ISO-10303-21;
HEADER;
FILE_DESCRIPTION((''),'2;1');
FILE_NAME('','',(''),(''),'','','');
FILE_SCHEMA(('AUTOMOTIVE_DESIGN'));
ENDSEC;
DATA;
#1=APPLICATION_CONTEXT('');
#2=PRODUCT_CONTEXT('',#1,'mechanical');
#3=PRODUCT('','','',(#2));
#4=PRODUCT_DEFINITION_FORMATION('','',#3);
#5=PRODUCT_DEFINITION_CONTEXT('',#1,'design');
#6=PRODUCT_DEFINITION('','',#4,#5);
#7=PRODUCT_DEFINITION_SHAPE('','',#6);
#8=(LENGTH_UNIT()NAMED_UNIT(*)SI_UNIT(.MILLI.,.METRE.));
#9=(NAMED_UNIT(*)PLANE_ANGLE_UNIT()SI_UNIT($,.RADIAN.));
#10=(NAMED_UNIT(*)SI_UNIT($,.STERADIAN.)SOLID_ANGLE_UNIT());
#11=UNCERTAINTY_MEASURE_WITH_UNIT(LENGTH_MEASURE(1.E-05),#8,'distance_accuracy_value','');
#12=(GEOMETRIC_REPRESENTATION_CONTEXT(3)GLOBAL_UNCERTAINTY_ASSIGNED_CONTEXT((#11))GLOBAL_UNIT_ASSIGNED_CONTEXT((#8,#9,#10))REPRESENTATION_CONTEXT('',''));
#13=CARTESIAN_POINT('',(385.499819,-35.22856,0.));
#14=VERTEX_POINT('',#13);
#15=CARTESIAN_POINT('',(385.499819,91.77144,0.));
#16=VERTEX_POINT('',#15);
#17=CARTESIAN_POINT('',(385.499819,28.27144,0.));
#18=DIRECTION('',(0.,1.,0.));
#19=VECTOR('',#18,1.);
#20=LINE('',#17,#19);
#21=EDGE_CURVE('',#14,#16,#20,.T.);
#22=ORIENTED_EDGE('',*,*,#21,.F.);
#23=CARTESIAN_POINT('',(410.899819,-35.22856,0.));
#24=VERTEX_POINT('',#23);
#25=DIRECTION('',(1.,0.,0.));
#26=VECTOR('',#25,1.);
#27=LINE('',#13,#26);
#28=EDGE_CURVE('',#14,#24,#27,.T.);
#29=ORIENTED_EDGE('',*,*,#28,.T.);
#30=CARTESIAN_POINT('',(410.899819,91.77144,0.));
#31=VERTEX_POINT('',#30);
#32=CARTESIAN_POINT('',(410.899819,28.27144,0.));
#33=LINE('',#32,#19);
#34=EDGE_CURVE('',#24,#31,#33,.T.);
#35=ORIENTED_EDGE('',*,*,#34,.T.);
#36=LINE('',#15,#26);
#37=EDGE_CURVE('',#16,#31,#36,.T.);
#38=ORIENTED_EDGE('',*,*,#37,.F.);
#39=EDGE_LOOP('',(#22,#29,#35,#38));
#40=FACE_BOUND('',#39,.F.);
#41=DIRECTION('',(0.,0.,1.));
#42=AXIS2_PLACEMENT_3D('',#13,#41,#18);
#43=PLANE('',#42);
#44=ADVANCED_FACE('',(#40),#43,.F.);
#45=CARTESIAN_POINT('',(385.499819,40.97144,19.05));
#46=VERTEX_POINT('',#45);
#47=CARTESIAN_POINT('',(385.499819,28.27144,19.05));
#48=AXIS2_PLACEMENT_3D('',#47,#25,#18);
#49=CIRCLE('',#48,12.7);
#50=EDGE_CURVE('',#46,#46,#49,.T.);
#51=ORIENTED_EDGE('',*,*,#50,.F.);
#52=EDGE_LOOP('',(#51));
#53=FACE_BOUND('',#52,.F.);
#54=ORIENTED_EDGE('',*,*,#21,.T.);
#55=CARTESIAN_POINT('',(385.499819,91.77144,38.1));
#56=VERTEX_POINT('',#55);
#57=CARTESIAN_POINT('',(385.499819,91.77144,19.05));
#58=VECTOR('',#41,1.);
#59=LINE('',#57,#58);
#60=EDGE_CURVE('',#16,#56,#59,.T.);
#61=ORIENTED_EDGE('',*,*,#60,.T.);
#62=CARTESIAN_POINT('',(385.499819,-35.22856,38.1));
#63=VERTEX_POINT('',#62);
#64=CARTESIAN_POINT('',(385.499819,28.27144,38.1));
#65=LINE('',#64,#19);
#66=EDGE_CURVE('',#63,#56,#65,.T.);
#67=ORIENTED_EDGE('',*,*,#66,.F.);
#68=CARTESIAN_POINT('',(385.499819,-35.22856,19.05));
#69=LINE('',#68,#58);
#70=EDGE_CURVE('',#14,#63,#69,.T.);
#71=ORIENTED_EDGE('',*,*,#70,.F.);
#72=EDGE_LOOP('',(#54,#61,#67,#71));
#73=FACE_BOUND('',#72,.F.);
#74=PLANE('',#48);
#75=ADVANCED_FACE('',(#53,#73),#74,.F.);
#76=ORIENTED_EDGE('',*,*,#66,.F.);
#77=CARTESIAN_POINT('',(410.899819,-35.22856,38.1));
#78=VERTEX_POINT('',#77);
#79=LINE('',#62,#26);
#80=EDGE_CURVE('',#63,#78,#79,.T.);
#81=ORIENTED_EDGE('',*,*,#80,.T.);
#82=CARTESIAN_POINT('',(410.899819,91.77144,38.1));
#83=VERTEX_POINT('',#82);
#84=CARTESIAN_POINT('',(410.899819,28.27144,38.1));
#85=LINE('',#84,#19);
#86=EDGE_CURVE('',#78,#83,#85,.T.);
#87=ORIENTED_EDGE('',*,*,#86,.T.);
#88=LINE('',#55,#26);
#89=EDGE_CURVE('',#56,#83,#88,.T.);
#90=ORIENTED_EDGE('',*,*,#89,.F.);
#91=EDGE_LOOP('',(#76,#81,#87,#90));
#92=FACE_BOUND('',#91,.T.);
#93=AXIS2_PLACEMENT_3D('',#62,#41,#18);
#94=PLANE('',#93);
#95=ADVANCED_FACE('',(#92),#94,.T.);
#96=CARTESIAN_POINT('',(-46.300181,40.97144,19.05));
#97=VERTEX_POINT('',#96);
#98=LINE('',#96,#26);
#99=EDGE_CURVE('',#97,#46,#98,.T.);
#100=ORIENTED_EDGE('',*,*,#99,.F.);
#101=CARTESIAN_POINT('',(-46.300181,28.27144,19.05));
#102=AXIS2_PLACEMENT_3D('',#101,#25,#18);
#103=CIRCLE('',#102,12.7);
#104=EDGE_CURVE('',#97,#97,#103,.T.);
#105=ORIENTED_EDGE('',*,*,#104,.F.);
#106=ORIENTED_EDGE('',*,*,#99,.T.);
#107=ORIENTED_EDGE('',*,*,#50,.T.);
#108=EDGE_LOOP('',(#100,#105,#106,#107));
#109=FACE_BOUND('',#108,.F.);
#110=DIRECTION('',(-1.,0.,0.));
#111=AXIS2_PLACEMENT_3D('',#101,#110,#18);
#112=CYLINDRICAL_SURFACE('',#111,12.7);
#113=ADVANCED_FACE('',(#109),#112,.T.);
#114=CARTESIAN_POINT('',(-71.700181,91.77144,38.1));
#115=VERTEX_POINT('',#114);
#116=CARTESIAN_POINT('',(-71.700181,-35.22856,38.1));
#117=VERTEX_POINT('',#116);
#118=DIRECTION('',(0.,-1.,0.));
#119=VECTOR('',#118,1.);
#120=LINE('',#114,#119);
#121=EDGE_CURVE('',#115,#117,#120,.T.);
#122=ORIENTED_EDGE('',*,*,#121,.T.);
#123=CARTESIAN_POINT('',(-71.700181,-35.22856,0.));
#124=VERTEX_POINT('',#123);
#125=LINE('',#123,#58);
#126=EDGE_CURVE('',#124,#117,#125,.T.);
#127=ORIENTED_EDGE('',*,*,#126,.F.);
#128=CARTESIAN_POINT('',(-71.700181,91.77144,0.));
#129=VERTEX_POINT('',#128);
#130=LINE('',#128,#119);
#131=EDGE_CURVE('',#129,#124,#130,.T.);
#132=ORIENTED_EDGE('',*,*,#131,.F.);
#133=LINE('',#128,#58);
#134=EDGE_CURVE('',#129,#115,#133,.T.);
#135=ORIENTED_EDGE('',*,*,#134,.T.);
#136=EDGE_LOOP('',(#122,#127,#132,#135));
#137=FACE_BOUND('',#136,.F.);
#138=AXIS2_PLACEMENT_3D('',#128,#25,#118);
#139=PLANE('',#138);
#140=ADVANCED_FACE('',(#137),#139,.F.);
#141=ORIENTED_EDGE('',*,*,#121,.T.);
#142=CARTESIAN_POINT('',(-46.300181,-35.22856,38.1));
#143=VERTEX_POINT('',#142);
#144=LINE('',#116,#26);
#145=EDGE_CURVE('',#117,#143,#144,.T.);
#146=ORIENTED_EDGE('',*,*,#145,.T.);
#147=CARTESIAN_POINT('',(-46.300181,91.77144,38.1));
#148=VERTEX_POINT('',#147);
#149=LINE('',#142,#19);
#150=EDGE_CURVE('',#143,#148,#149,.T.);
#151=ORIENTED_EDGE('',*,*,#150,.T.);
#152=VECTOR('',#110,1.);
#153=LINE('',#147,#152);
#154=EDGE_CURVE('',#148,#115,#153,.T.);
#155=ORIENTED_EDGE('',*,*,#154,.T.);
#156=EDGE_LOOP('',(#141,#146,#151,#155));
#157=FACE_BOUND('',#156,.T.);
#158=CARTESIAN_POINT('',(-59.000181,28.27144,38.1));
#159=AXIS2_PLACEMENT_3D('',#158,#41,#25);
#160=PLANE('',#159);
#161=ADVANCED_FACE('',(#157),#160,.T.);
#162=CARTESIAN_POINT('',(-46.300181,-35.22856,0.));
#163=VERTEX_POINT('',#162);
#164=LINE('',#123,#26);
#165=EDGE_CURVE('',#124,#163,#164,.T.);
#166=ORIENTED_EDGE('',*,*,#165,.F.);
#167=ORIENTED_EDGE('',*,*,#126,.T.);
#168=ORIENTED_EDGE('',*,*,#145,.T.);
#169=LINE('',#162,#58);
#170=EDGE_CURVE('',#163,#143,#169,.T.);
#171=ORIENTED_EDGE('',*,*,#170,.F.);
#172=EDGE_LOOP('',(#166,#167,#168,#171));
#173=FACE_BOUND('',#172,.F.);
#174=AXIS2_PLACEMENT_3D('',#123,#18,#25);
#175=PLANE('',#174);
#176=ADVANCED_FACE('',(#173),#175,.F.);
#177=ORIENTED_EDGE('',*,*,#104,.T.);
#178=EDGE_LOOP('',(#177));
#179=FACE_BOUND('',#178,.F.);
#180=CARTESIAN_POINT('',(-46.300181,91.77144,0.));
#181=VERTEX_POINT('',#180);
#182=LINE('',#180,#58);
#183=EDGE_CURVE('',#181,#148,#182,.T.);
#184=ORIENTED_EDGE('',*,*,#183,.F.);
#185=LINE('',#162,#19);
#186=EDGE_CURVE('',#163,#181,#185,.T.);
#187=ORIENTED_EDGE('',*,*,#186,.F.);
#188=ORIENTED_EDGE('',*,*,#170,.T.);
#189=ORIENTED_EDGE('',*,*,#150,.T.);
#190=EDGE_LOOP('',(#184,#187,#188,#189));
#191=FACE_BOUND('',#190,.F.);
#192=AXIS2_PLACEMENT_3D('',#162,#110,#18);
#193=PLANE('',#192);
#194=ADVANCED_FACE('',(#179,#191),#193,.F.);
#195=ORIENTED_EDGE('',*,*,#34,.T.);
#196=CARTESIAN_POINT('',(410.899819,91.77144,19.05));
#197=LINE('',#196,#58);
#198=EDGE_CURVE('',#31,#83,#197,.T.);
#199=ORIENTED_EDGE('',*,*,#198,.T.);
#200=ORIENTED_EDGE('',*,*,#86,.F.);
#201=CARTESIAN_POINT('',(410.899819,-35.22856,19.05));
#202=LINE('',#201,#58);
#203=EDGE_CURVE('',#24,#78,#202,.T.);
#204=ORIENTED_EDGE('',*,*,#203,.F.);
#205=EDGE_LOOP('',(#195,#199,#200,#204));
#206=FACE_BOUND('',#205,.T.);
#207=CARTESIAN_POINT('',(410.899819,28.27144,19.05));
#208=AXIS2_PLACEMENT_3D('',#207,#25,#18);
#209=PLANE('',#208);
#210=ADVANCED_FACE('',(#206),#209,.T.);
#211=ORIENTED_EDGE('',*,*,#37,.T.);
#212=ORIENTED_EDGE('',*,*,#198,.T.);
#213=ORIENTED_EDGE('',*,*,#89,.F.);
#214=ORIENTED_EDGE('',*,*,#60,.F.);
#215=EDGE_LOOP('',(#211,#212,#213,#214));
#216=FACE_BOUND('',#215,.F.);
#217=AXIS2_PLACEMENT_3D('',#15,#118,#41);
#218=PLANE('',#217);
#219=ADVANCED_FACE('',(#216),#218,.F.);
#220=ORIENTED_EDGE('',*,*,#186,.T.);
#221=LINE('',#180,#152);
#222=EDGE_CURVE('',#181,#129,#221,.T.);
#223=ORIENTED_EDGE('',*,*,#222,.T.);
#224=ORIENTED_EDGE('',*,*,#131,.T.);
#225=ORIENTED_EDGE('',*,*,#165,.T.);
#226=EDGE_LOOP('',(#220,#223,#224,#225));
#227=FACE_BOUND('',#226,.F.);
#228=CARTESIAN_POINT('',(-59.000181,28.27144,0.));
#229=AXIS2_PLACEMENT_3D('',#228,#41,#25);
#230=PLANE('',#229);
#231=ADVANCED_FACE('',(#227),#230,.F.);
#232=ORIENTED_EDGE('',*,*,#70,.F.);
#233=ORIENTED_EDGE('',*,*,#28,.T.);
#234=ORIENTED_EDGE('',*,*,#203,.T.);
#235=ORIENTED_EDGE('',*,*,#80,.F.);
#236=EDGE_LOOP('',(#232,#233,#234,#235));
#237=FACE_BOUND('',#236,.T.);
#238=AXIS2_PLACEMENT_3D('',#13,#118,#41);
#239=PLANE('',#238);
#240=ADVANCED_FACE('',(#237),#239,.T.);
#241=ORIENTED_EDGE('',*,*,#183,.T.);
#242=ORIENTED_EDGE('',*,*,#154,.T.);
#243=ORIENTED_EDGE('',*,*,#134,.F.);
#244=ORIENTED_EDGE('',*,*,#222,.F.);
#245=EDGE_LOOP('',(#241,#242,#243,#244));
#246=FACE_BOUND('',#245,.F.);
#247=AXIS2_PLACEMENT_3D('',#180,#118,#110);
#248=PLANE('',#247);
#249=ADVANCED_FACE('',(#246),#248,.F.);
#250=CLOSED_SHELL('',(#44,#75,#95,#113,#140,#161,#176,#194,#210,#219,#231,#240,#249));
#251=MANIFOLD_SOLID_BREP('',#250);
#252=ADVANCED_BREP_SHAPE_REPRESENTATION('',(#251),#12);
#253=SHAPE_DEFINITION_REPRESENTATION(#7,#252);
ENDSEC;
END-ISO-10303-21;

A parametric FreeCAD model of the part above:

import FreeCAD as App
import Part
import Sketcher

V = App.Vector
Q = App.Units.Quantity


def add_polygon(sketch, points):
    """Adds a closed chain of lines whose ends are joined by coincident constraints."""
    first, n = sketch.GeometryCount, len(points)
    for a, b in zip(points, points[1:] + points[:1]):
        sketch.addGeometry(Part.LineSegment(App.Vector(*a, 0), App.Vector(*b, 0)), False)
    for i in range(n):
        sketch.addConstraint(Sketcher.Constraint("Coincident", first + i, 2, first + (i + 1) % n, 1))

doc = App.newDocument("Part")
params = doc.addObject("Spreadsheet::Sheet", "Params")
for row, (alias, value) in enumerate([
    ("sketch1_width", "1 in"),
    ("sketch1_height", "5 in"),
    ("pad1_length", "1.5 in"),
    ("sketch2_diameter", "1 in"),
    ("pad2_length", "17 in"),
    ("sketch3_width", "5 in"),
    ("sketch3_height", "1.5 in"),
    ("pad3_length", "1 in"),
], start=1):
    params.set(f"A{row}", alias)
    params.set(f"B{row}", "=" + value)
    params.setAlias(f"B{row}", alias)

body = doc.addObject("PartDesign::Body", "Body")

# Sketch on XY plane
sketch1 = body.newObject("Sketcher::SketchObject", "Sketch")
sketch1.AttachmentSupport = (doc.getObject("XY_Plane"), [""])
sketch1.MapMode = "FlatFace"
add_polygon(sketch1, [(-46.300181, 91.77144), (-71.700181, 91.77144), (-71.700181, -35.22856), (-46.300181, -35.22856)])  # lines 0-3
sketch1.addConstraint([
    Sketcher.Constraint("Horizontal", 0),
    Sketcher.Constraint("Vertical", 1),
    Sketcher.Constraint("Horizontal", 2),
    Sketcher.Constraint("Vertical", 3),
    Sketcher.Constraint("DistanceX", 0, 2, 0, 1, Q("1 in")),
    Sketcher.Constraint("DistanceY", 1, 2, 1, 1, Q("5 in")),
    Sketcher.Constraint("DistanceX", 0, 2, -1, 1, 71.700181),
    Sketcher.Constraint("DistanceY", -1, 1, 0, 2, 91.77144),
])
sketch1.setExpression("Constraints[8]", "Params.sketch1_width")
sketch1.setExpression("Constraints[9]", "Params.sketch1_height")
pad1 = body.newObject("PartDesign::Pad", "Pad")
pad1.Profile = sketch1
pad1.setExpression("Length", "Params.pad1_length")

# Sketch on YZ plane
sketch2 = body.newObject("Sketcher::SketchObject", "Sketch001")
sketch2.AttachmentSupport = (doc.getObject("YZ_Plane"), [""])
sketch2.MapMode = "FlatFace"
sketch2.AttachmentOffset = App.Placement(V(0, 0, -46.300181), App.Rotation())
sketch2.addGeometry(Part.Circle(V(28.27144, 19.05, 0), V(0, 0, 1), 12.7), False)
sketch2.addConstraint([
    Sketcher.Constraint("Diameter", 0, Q("1 in")),
    Sketcher.Constraint("DistanceY", -1, 1, 0, 3, Q("0.75 in")),
    Sketcher.Constraint("DistanceX", -1, 1, 0, 3, 28.27144),
])
sketch2.setExpression("Constraints[0]", "Params.sketch2_diameter")
pad2 = body.newObject("PartDesign::Pad", "Pad001")
pad2.Profile = sketch2
pad2.setExpression("Length", "Params.pad2_length")

# Sketch on YZ plane
sketch3 = body.newObject("Sketcher::SketchObject", "Sketch002")
sketch3.AttachmentSupport = (doc.getObject("YZ_Plane"), [""])
sketch3.MapMode = "FlatFace"
sketch3.AttachmentOffset = App.Placement(V(0, 0, 385.499819), App.Rotation())
add_polygon(sketch3, [(-35.22856, 38.1), (-35.22856, 0), (91.77144, 0), (91.77144, 38.1)])  # lines 0-3
sketch3.addConstraint([
    Sketcher.Constraint("Vertical", 0),
    Sketcher.Constraint("Horizontal", 1),
    Sketcher.Constraint("Vertical", 2),
    Sketcher.Constraint("Horizontal", 3),
    Sketcher.Constraint("PointOnObject", 0, 2, -1),
    Sketcher.Constraint("DistanceX", 1, 1, 1, 2, Q("5 in")),
    Sketcher.Constraint("DistanceY", 0, 2, 0, 1, Q("1.5 in")),
    Sketcher.Constraint("DistanceX", 0, 2, -1, 1, 35.22856),
])
sketch3.setExpression("Constraints[9]", "Params.sketch3_width")
sketch3.setExpression("Constraints[10]", "Params.sketch3_height")
pad3 = body.newObject("PartDesign::Pad", "Pad002")
pad3.Profile = sketch3
pad3.setExpression("Length", "Params.pad3_length")

doc.recompute()
